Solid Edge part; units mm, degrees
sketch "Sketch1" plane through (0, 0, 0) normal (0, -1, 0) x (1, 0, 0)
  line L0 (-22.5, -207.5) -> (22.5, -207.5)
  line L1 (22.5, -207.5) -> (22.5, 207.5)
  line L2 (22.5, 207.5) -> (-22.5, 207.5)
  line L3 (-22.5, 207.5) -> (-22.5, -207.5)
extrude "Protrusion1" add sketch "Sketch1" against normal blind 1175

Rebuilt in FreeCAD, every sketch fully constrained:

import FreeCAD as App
import Part
import Sketcher

V = App.Vector

doc = App.newDocument("Part")
body = doc.addObject("PartDesign::Body", "Body")

sketch1 = body.newObject("Sketcher::SketchObject", "Sketch")
sketch1.AttachmentSupport = (doc.getObject("XZ_Plane"), [""])
sketch1.MapMode = "FlatFace"
sketch1.addGeometry([
    Part.LineSegment(V(-22, 208, 0), V(-22, -208, 0)),
    Part.LineSegment(V(-22, -208, 0), V(22, -208, 0)),
    Part.LineSegment(V(22, -208, 0), V(22, 208, 0)),
    Part.LineSegment(V(22, 208, 0), V(-22, 208, 0)),
], False)
sketch1.addConstraint([
    Sketcher.Constraint("Coincident", 0, 2, 1, 1),
    Sketcher.Constraint("Coincident", 1, 2, 2, 1),
    Sketcher.Constraint("Coincident", 2, 2, 3, 1),
    Sketcher.Constraint("Coincident", 3, 2, 0, 1),
    Sketcher.Constraint("Vertical", 0),
    Sketcher.Constraint("Horizontal", 1),
    Sketcher.Constraint("Vertical", 2),
    Sketcher.Constraint("Horizontal", 3),
    Sketcher.Constraint("Symmetric", 0, 2, 2, 2, -1, 1),
    Sketcher.Constraint("DistanceX", 1, 1, 1, 2, 45.0),
    Sketcher.Constraint("DistanceY", 0, 2, 0, 1, 415.0),
])
pad1 = body.newObject("PartDesign::Pad", "Pad")
pad1.Profile = sketch1
pad1.Length = 1175
pad1.Reversed = True

doc.recompute()
